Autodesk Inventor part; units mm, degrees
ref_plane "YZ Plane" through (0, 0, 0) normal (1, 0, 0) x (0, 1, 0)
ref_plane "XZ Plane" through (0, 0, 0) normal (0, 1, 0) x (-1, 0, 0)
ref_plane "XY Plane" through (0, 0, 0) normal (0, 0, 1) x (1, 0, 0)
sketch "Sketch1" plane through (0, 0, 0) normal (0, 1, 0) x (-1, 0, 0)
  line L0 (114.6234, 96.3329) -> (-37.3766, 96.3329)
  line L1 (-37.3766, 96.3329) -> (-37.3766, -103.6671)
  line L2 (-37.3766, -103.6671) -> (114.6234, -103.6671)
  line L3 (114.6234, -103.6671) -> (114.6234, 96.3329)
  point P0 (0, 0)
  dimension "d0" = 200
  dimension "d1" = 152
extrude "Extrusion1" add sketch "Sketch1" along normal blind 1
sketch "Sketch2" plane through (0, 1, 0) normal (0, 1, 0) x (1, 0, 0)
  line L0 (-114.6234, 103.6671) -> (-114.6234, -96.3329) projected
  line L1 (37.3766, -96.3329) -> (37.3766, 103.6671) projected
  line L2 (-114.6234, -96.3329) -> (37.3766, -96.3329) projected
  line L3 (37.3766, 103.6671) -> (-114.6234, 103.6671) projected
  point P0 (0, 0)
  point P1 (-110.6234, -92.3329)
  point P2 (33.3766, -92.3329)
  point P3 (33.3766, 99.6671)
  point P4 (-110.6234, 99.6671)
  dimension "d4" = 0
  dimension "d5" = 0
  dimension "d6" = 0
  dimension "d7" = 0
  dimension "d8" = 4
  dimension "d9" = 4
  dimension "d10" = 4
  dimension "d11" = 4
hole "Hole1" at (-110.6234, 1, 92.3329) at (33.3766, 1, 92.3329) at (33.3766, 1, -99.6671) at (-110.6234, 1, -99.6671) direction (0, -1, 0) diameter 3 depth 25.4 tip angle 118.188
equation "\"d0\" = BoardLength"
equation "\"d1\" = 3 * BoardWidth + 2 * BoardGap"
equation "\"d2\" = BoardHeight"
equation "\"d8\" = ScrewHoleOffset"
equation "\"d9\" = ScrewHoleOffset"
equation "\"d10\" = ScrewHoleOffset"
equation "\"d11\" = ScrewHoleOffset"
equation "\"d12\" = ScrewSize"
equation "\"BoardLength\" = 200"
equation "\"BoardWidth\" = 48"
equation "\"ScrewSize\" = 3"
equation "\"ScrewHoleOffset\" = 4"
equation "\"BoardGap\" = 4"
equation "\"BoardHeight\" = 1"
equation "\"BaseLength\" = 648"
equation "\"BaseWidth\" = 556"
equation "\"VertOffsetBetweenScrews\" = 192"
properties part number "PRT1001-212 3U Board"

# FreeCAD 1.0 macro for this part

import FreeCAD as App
import Part
import Sketcher

V = App.Vector
Q = App.Units.Quantity

doc = App.newDocument("Part")
body = doc.addObject("PartDesign::Body", "Body")

# Sketch on XZ plane
sketch1 = doc.addObject("Sketcher::SketchObject", "Sketch")
body.addObject(sketch1)
sketch1.AttachmentSupport = (doc.XZ_Plane, [""])
sketch1.MapMode = "FlatFace"
sketch1.addGeometry([
    Part.LineSegment(V(-114.6234, -103.6671, 0), V(-114.6234, 96.3329, 0)),
    Part.LineSegment(V(-114.6234, 96.3329, 0), V(37.3766, 96.3329, 0)),
    Part.LineSegment(V(37.3766, 96.3329, 0), V(37.3766, -103.6671, 0)),
    Part.LineSegment(V(37.3766, -103.6671, 0), V(-114.6234, -103.6671, 0)),
], False)
sketch1.addConstraint([
    Sketcher.Constraint("Coincident", 0, 2, 1, 1),
    Sketcher.Constraint("Coincident", 1, 2, 2, 1),
    Sketcher.Constraint("Coincident", 2, 2, 3, 1),
    Sketcher.Constraint("Coincident", 3, 2, 0, 1),
    Sketcher.Constraint("Vertical", 0),
    Sketcher.Constraint("Horizontal", 1),
    Sketcher.Constraint("Vertical", 2),
    Sketcher.Constraint("Horizontal", 3),
    Sketcher.Constraint("DistanceX", 1, 1, 1, 2, Q("152 mm")),
    Sketcher.Constraint("DistanceY", 0, 1, 0, 2, Q("200 mm")),
    Sketcher.Constraint("DistanceY", -1, 1, 0, 2, Q("96.333 mm")),
    Sketcher.Constraint("DistanceX", 0, 2, -1, 1, Q("114.6234 mm")),
])
pad1 = doc.addObject("PartDesign::Pad", "Pad")
body.addObject(pad1)
pad1.Profile = sketch1
pad1.Length = 1
pad1.Reversed = True

# Sketch on XZ plane
sketch2 = doc.addObject("Sketcher::SketchObject", "Sketch001")
body.addObject(sketch2)
sketch2.AttachmentSupport = (doc.XZ_Plane, [""])
sketch2.MapMode = "FlatFace"
sketch2.AttachmentOffset = App.Placement(V(0, 0, -1), App.Rotation())
sketch2.addGeometry([
    Part.Circle(V(-110.6234, 92.3329, 0), V(0, 0, 1), 1.5),
    Part.Circle(V(33.3766, 92.3329, 0), V(0, 0, 1), 1.5),
    Part.Circle(V(33.3766, -99.6671, 0), V(0, 0, 1), 1.5),
    Part.Circle(V(-110.6234, -99.6671, 0), V(0, 0, 1), 1.5),
], False)
sketch2.addConstraint([
    Sketcher.Constraint("Equal", 0, 1),
    Sketcher.Constraint("Equal", 1, 2),
    Sketcher.Constraint("Equal", 2, 3),
    Sketcher.Constraint("Horizontal", 0, 3, 1, 3),
    Sketcher.Constraint("Horizontal", 2, 3, 3, 3),
    Sketcher.Constraint("Vertical", 1, 3, 2, 3),
    Sketcher.Constraint("Vertical", 0, 3, 3, 3),
    Sketcher.Constraint("Diameter", 0, Q("3 mm")),
    Sketcher.Constraint("DistanceX", 0, 3, 1, 3, Q("144 mm")),
    Sketcher.Constraint("DistanceY", 2, 3, 1, 3, Q("192 mm")),
    Sketcher.Constraint("DistanceY", -1, 1, 0, 3, Q("92.333 mm")),
    Sketcher.Constraint("DistanceX", 0, 3, -1, 1, Q("110.6234 mm")),
])
doc.recompute()
hole = doc.addObject("PartDesign::Hole", "Hole")
body.addObject(hole)
hole.Profile = sketch2
hole.ThreadType = "None"
hole.Diameter = 3
hole.DepthType = "Dimension"
hole.Depth = 25.4
hole.DrillPoint = "Angled"
hole.DrillPointAngle = 118.188
hole.Reversed = True

doc.recompute()
